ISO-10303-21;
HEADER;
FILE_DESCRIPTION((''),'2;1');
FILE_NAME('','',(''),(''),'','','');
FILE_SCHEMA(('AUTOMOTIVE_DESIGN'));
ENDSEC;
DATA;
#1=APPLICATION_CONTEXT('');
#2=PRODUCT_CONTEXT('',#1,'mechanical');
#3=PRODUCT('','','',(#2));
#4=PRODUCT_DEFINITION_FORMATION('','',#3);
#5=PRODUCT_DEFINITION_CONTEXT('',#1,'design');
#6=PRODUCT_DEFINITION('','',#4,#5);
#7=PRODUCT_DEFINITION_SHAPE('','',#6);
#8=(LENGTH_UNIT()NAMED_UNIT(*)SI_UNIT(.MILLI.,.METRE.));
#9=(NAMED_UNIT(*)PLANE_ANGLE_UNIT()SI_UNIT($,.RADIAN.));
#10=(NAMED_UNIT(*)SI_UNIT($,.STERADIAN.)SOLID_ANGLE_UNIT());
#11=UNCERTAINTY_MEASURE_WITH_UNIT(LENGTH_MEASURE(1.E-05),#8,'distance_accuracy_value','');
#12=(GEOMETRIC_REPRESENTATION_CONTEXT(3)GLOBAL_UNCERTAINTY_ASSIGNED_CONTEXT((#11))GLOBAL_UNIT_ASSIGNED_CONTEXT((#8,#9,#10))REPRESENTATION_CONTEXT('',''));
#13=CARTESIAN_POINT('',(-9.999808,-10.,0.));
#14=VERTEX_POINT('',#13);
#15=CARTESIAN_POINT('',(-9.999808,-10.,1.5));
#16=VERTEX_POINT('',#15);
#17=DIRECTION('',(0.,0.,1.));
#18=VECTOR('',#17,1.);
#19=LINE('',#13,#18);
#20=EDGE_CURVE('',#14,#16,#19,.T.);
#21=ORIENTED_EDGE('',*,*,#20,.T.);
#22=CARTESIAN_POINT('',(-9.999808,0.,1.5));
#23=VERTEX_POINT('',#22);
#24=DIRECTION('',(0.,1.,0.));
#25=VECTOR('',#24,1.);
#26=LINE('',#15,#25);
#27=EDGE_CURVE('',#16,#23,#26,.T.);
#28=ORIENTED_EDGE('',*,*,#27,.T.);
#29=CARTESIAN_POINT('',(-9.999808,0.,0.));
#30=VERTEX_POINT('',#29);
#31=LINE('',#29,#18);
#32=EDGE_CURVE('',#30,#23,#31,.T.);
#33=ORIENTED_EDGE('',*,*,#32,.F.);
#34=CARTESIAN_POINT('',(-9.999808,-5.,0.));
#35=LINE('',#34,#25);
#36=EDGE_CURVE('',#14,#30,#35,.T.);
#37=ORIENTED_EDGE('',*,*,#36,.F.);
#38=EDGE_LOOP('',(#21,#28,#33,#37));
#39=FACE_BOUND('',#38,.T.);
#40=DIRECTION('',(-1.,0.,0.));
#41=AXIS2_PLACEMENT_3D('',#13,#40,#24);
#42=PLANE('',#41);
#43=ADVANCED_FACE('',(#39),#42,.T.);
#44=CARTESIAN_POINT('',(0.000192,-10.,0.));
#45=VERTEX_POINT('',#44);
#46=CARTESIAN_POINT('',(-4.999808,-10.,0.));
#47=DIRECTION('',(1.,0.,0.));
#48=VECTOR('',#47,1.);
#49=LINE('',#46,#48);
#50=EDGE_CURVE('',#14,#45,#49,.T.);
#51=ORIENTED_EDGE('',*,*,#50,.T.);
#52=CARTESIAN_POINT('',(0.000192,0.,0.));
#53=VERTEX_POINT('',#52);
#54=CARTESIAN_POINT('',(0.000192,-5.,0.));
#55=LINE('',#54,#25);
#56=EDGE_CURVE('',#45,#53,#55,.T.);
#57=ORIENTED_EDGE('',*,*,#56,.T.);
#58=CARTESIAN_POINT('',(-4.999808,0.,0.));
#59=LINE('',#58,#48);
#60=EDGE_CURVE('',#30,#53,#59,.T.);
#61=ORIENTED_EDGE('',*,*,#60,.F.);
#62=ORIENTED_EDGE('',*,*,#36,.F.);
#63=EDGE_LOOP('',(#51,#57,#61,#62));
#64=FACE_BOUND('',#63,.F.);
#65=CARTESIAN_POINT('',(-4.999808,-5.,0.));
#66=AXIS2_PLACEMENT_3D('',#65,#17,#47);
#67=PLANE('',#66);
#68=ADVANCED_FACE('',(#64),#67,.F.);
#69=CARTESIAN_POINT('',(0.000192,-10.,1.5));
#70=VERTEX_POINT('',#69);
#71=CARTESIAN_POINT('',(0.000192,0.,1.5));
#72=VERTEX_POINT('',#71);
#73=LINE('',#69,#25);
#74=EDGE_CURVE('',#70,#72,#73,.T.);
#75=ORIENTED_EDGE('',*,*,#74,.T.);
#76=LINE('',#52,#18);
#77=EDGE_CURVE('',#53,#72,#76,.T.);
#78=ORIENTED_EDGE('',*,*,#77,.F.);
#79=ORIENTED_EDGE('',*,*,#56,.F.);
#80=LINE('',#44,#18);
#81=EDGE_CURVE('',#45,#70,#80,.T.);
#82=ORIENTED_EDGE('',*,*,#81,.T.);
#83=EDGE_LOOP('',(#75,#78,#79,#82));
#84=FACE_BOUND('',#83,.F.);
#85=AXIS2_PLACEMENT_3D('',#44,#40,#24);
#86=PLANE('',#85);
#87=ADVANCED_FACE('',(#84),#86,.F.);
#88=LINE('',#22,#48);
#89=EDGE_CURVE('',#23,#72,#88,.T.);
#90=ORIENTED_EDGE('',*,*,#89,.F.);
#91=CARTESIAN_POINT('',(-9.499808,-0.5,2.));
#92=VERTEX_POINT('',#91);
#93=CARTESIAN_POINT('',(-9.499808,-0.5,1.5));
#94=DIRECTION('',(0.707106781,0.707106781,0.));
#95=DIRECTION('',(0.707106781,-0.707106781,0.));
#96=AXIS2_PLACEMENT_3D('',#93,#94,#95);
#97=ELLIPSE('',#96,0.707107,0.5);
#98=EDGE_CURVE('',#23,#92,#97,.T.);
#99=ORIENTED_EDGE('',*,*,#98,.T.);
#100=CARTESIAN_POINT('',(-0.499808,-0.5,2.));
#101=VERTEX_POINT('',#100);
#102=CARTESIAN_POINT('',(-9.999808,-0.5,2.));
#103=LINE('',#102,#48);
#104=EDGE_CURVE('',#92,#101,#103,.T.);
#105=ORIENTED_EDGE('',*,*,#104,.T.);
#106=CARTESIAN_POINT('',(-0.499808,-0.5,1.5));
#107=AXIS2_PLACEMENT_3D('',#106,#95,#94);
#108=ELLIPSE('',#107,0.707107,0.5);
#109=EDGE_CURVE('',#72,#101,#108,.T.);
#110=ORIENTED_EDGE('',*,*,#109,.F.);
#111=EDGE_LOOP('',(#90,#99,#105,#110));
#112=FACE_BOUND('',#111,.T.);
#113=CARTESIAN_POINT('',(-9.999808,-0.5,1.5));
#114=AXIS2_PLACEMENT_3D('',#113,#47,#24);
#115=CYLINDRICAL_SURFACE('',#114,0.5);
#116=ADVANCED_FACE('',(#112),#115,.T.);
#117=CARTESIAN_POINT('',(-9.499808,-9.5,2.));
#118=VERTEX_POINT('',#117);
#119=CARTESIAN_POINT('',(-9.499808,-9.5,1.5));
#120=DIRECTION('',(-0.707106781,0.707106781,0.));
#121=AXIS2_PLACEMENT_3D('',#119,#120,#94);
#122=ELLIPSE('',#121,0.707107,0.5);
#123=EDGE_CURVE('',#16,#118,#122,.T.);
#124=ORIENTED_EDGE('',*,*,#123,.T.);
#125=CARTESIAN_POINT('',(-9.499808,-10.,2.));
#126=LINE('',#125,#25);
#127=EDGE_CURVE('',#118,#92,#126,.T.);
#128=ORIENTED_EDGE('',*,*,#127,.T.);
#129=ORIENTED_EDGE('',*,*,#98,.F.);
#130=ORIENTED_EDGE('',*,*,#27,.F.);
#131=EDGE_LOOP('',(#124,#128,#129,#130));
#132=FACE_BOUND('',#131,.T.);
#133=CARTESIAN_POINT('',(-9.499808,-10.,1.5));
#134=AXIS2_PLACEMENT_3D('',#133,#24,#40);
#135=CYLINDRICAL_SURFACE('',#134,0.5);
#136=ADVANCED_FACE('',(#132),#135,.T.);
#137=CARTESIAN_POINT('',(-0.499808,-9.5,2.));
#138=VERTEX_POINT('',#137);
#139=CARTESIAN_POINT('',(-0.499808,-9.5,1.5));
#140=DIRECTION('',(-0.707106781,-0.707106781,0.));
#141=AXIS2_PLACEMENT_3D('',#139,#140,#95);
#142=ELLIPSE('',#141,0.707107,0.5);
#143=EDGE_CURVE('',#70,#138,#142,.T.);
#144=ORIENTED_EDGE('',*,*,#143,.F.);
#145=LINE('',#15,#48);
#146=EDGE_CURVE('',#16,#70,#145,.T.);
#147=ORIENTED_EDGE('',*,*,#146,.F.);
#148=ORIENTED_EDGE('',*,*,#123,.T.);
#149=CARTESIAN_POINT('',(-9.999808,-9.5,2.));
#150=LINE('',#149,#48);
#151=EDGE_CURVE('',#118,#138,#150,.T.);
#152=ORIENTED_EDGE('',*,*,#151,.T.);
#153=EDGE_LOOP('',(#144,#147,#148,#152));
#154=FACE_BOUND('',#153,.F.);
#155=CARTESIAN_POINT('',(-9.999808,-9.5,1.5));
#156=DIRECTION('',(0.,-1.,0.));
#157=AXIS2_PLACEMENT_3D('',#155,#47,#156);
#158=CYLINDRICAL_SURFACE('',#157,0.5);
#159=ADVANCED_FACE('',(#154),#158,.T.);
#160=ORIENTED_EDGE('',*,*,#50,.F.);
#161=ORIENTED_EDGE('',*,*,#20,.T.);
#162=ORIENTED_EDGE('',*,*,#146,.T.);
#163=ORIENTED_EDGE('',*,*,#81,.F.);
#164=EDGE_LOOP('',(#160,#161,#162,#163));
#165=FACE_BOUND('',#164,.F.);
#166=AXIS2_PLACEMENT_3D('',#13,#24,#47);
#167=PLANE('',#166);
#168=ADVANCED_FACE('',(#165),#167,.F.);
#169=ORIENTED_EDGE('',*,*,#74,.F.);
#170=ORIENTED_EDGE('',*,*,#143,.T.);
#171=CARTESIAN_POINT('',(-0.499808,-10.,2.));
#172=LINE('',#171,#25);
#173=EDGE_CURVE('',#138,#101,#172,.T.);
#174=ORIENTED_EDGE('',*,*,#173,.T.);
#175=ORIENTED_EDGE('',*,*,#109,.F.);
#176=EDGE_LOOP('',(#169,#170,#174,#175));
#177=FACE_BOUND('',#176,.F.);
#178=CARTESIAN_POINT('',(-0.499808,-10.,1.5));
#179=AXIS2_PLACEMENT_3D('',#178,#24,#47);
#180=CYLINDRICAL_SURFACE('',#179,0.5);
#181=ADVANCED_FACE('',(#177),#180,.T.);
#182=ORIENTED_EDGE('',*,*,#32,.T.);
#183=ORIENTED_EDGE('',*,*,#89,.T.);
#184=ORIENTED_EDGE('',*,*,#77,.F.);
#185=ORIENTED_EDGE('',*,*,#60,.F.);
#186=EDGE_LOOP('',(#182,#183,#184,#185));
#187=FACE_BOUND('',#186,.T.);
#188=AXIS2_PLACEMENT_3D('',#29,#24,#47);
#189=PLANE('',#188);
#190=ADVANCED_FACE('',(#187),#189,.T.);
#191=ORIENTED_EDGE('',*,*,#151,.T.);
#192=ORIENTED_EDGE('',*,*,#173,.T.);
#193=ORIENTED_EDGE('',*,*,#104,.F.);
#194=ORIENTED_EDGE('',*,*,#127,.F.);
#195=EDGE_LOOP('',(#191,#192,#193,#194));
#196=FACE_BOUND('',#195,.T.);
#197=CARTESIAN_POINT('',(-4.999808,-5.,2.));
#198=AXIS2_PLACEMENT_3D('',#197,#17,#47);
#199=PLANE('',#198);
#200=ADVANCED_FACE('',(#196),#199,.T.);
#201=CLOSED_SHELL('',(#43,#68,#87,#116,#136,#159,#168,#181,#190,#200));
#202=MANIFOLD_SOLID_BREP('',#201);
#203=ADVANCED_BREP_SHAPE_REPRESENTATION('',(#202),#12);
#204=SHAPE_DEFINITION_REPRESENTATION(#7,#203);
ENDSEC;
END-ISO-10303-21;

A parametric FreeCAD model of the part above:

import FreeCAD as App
import Part
import Sketcher
Q = App.Units.Quantity


def edges_at(feature, points):
    """Names of the edges that pass closest to the given points."""
    edges = feature.Shape.Edges
    near = lambda p: min(range(len(edges)), key=lambda i: edges[i].distToShape(Part.Vertex(*p))[0])
    return sorted({f"Edge{near(p) + 1}" for p in points})

doc = App.newDocument("Part")
body = doc.addObject("PartDesign::Body", "Body")

# Sketch on XY plane
sketch1 = body.newObject("Sketcher::SketchObject", "Sketch")
sketch1.AttachmentSupport = (doc.getObject("XY_Plane"), [""])
sketch1.MapMode = "FlatFace"
sketch1.addGeometry([
    Part.LineSegment(App.Vector(-10, 0, 0), App.Vector(-10, -10, 0)),
    Part.LineSegment(App.Vector(-10, -10, 0), App.Vector(0, -10, 0)),
    Part.LineSegment(App.Vector(0, -10, 0), App.Vector(0, 0, 0)),
    Part.LineSegment(App.Vector(0, 0, 0), App.Vector(-10, 0, 0)),
], False)
sketch1.addConstraint([
    Sketcher.Constraint("Coincident", 0, 2, 1, 1),
    Sketcher.Constraint("Coincident", 1, 2, 2, 1),
    Sketcher.Constraint("Coincident", 2, 2, 3, 1),
    Sketcher.Constraint("Coincident", 3, 2, 0, 1),
    Sketcher.Constraint("Vertical", 0),
    Sketcher.Constraint("Horizontal", 1),
    Sketcher.Constraint("Vertical", 2),
    Sketcher.Constraint("Horizontal", 3),
    Sketcher.Constraint("PointOnObject", 2, 2, -1),
    Sketcher.Constraint("Equal", 3, 0),
    Sketcher.Constraint("DistanceX", 1, 1, 1, 2, Q("10 mm")),
    Sketcher.Constraint("DistanceX", -1, 1, 1, 2, Q("0.000192 mm")),
])
pad1 = body.newObject("PartDesign::Pad", "Pad")
pad1.Profile = sketch1
pad1.Length = 2
doc.recompute()

fillet = body.newObject("PartDesign::Fillet", "Fillet")
fillet.Base = (pad1, edges_at(pad1, [
    (-5, -10, 2),
    (0, -5, 2),
    (-5, 0, 2),
    (-10, -5, 2),
]))
fillet.Radius = 0.5

doc.recompute()
